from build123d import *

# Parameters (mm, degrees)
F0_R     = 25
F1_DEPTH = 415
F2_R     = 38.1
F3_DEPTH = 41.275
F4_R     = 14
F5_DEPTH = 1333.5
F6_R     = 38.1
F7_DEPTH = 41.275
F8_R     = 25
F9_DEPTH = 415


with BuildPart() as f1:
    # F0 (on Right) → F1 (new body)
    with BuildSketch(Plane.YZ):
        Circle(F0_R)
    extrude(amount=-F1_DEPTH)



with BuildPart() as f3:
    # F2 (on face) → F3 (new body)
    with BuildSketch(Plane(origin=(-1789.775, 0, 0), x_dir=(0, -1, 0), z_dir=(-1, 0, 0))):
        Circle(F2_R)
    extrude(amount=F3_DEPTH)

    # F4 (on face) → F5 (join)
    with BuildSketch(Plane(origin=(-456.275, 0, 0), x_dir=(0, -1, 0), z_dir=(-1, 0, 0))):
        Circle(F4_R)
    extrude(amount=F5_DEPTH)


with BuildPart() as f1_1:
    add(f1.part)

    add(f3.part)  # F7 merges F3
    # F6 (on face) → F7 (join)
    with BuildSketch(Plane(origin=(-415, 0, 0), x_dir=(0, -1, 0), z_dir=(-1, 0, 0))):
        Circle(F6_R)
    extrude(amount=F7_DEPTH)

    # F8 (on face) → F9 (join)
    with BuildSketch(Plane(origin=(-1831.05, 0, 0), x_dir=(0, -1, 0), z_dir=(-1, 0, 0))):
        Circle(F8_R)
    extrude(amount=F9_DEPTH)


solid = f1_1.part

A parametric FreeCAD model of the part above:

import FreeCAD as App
import Part
import Sketcher

V = App.Vector

doc = App.newDocument("Part")
body = doc.addObject("PartDesign::Body", "Body")

sketch1 = body.newObject("Sketcher::SketchObject", "Sketch")
sketch1.AttachmentSupport = (doc.getObject("YZ_Plane"), [""])
sketch1.MapMode = "FlatFace"
sketch1.addGeometry(Part.Circle(V(0, 0, 0), V(0, 0, 1), 25), False)
sketch1.addConstraint(Sketcher.Constraint("Coincident", 0, 3, -1, 1))
sketch1.addConstraint(Sketcher.Constraint("Diameter", 0, 50.0))
pad1 = body.newObject("PartDesign::Pad", "Pad")
pad1.Profile = sketch1
pad1.Length = 415
pad1.Reversed = True
body2 = doc.addObject("PartDesign::Body", "Body001")

sketch2 = body2.newObject("Sketcher::SketchObject", "Sketch001")
sketch2.AttachmentSupport = (doc.getObject("YZ_Plane001"), [""])
sketch2.MapMode = "FlatFace"
sketch2.AttachmentOffset = App.Placement(V(0, 0, -1789.775), App.Rotation())
sketch2.addGeometry(Part.Circle(V(0, 0, 0), V(0, 0, 1), 38), False)
sketch2.addConstraint(Sketcher.Constraint("Coincident", 0, 3, -1, 1))
sketch2.addConstraint(Sketcher.Constraint("Diameter", 0, 76.2))
pad2 = body2.newObject("PartDesign::Pad", "Pad001")
pad2.Profile = sketch2
pad2.Length = 41.275
pad2.Reversed = True

sketch3 = body2.newObject("Sketcher::SketchObject", "Sketch002")
sketch3.AttachmentSupport = (doc.getObject("YZ_Plane001"), [""])
sketch3.MapMode = "FlatFace"
sketch3.AttachmentOffset = App.Placement(V(0, 0, -456.275), App.Rotation())
sketch3.addGeometry(Part.Circle(V(0, 0, 0), V(0, 0, 1), 14), False)
sketch3.addConstraint(Sketcher.Constraint("Coincident", 0, 3, -1, 1))
sketch3.addConstraint(Sketcher.Constraint("Diameter", 0, 28.0))
pad3 = body2.newObject("PartDesign::Pad", "Pad002")
pad3.Profile = sketch3
pad3.Length = 1333.5
pad3.Reversed = True
body.AllowCompound = True
doc.recompute()

boolean = body.newObject("PartDesign::Boolean", "Boolean")
boolean.Type = "Fuse"
boolean.addObjects([body2])

sketch4 = body.newObject("Sketcher::SketchObject", "Sketch003")
sketch4.AttachmentSupport = (doc.getObject("YZ_Plane"), [""])
sketch4.MapMode = "FlatFace"
sketch4.AttachmentOffset = App.Placement(V(0, 0, -415), App.Rotation())
sketch4.addGeometry(Part.Circle(V(0, 0, 0), V(0, 0, 1), 38), False)
sketch4.addConstraint(Sketcher.Constraint("Coincident", 0, 3, -1, 1))
sketch4.addConstraint(Sketcher.Constraint("Diameter", 0, 76.2))
pad4 = body.newObject("PartDesign::Pad", "Pad003")
pad4.Profile = sketch4
pad4.Length = 41.275
pad4.Reversed = True

sketch5 = body.newObject("Sketcher::SketchObject", "Sketch004")
sketch5.AttachmentSupport = (doc.getObject("YZ_Plane"), [""])
sketch5.MapMode = "FlatFace"
sketch5.AttachmentOffset = App.Placement(V(0, 0, -1831.05), App.Rotation())
sketch5.addGeometry(Part.Circle(V(0, 0, 0), V(0, 0, 1), 25), False)
sketch5.addConstraint(Sketcher.Constraint("Coincident", 0, 3, -1, 1))
sketch5.addConstraint(Sketcher.Constraint("Diameter", 0, 50.0))
pad5 = body.newObject("PartDesign::Pad", "Pad004")
pad5.Profile = sketch5
pad5.Length = 415
pad5.Reversed = True

doc.recompute()
